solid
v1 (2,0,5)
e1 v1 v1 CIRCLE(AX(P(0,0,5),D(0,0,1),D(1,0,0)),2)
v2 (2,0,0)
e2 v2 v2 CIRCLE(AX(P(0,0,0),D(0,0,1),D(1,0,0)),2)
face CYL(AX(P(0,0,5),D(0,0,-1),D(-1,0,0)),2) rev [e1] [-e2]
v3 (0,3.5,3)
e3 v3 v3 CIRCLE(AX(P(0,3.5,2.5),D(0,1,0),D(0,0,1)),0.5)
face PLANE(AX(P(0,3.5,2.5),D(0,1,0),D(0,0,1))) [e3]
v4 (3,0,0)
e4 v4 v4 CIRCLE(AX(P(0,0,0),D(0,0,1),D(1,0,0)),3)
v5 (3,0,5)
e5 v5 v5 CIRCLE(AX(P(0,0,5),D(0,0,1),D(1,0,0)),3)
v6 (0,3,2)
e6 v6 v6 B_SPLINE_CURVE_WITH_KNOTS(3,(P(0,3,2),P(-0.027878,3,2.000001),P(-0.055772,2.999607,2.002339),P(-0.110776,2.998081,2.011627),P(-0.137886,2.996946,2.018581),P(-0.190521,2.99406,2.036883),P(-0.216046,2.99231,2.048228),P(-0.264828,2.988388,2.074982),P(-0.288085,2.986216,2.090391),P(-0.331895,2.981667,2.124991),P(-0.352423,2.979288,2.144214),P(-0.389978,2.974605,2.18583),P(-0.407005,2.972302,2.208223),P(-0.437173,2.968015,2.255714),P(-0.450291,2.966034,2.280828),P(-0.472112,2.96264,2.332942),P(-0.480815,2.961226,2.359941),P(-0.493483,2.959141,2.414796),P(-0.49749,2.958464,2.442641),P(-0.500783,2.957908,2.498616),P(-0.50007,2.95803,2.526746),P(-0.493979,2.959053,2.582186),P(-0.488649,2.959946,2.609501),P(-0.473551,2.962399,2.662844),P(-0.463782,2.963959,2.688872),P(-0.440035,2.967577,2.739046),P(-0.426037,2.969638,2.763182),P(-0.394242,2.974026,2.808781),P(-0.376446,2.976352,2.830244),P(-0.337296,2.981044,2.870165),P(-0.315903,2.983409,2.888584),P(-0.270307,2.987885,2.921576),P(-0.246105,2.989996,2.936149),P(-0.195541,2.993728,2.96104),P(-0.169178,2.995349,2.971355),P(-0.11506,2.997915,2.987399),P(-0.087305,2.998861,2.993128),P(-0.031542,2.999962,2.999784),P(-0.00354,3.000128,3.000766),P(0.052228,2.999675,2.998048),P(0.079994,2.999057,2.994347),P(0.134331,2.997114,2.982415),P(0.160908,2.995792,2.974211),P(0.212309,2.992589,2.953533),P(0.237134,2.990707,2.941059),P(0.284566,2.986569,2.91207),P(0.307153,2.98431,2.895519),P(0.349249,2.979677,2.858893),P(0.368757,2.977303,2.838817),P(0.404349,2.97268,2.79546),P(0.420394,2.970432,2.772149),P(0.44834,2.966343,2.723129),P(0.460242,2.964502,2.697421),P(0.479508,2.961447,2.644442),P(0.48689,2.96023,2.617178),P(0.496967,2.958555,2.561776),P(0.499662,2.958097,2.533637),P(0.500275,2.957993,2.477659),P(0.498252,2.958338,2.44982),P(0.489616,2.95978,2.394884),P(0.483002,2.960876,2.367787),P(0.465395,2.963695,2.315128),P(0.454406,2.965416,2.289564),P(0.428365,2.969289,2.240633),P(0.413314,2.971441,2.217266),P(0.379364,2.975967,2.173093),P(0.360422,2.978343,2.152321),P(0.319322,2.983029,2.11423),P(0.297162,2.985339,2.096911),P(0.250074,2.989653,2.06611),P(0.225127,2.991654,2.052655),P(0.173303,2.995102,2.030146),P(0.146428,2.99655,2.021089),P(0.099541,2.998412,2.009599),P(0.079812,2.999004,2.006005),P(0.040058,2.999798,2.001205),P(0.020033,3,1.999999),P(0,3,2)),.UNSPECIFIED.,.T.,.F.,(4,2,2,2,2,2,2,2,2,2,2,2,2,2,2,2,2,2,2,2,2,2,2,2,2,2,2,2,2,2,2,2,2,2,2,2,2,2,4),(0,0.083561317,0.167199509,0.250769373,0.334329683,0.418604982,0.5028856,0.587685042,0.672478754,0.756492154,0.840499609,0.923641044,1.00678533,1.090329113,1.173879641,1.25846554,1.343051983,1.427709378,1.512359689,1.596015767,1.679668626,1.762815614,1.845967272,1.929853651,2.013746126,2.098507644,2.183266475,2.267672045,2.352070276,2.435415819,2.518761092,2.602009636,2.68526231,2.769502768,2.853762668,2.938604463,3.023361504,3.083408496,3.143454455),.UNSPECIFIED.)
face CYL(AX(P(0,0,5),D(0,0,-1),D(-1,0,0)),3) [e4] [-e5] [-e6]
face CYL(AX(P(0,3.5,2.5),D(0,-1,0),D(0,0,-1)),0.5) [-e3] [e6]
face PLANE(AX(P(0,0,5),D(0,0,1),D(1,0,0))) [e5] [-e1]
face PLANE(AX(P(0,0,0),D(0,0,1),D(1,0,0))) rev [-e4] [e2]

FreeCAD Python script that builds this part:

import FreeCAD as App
import Part
import Sketcher
from FreeCAD import Vector
Q = App.Units.Quantity

doc = App.newDocument("Part")
body = doc.addObject("PartDesign::Body", "Body")

# Sketch on XY plane
sketch1 = body.newObject("Sketcher::SketchObject", "Sketch")
sketch1.AttachmentSupport = (doc.getObject("XY_Plane"), [""])
sketch1.MapMode = "FlatFace"
sketch1.addGeometry([
    Part.Circle(Vector(0, 0, 0), Vector(0, 0, 1), 3),
    Part.Circle(Vector(0, 0, 0), Vector(0, 0, 1), 2),
], False)
sketch1.addConstraint([
    Sketcher.Constraint("Coincident", 0, 3, -1, 1),
    Sketcher.Constraint("Coincident", 1, 3, -1, 1),
    Sketcher.Constraint("Diameter", 0, Q("6 mm")),
    Sketcher.Constraint("Diameter", 1, Q("4 mm")),
])
pad1 = body.newObject("PartDesign::Pad", "Pad")
pad1.Profile = sketch1
pad1.Length = 5

# Sketch on XZ plane
sketch2 = body.newObject("Sketcher::SketchObject", "Sketch001")
sketch2.AttachmentSupport = (doc.getObject("XZ_Plane"), [""])
sketch2.MapMode = "FlatFace"
sketch2.addGeometry(Part.Circle(Vector(0, 2.5, 0), Vector(0, 0, 1), 0.5), False)
sketch2.addConstraint([
    Sketcher.Constraint("PointOnObject", 0, 3, -2),
    Sketcher.Constraint("Diameter", 0, Q("1 mm")),
    Sketcher.Constraint("DistanceY", -1, 1, 0, 3, Q("2.5 mm")),
])
pad2 = body.newObject("PartDesign::Pad", "Pad001")
pad2.Profile = sketch2
pad2.Length = 3.5
pad2.Reversed = True

# Sketch on XY plane
sketch3 = body.newObject("Sketcher::SketchObject", "Sketch002")
sketch3.AttachmentSupport = (doc.getObject("XY_Plane"), [""])
sketch3.MapMode = "FlatFace"
sketch3.AttachmentOffset = App.Placement(Vector(0, 0, 5), App.Rotation())
sketch3.addGeometry(Part.Circle(Vector(0, 0, 0), Vector(0, 0, 1), 2), False)
sketch3.addConstraint([
    Sketcher.Constraint("Coincident", 0, 3, -1, 1),
    Sketcher.Constraint("Diameter", 0, Q("4 mm")),
])
pocket1 = body.newObject("PartDesign::Pocket", "Pocket")
pocket1.Profile = sketch3
pocket1.Length = 3.5

doc.recompute()
